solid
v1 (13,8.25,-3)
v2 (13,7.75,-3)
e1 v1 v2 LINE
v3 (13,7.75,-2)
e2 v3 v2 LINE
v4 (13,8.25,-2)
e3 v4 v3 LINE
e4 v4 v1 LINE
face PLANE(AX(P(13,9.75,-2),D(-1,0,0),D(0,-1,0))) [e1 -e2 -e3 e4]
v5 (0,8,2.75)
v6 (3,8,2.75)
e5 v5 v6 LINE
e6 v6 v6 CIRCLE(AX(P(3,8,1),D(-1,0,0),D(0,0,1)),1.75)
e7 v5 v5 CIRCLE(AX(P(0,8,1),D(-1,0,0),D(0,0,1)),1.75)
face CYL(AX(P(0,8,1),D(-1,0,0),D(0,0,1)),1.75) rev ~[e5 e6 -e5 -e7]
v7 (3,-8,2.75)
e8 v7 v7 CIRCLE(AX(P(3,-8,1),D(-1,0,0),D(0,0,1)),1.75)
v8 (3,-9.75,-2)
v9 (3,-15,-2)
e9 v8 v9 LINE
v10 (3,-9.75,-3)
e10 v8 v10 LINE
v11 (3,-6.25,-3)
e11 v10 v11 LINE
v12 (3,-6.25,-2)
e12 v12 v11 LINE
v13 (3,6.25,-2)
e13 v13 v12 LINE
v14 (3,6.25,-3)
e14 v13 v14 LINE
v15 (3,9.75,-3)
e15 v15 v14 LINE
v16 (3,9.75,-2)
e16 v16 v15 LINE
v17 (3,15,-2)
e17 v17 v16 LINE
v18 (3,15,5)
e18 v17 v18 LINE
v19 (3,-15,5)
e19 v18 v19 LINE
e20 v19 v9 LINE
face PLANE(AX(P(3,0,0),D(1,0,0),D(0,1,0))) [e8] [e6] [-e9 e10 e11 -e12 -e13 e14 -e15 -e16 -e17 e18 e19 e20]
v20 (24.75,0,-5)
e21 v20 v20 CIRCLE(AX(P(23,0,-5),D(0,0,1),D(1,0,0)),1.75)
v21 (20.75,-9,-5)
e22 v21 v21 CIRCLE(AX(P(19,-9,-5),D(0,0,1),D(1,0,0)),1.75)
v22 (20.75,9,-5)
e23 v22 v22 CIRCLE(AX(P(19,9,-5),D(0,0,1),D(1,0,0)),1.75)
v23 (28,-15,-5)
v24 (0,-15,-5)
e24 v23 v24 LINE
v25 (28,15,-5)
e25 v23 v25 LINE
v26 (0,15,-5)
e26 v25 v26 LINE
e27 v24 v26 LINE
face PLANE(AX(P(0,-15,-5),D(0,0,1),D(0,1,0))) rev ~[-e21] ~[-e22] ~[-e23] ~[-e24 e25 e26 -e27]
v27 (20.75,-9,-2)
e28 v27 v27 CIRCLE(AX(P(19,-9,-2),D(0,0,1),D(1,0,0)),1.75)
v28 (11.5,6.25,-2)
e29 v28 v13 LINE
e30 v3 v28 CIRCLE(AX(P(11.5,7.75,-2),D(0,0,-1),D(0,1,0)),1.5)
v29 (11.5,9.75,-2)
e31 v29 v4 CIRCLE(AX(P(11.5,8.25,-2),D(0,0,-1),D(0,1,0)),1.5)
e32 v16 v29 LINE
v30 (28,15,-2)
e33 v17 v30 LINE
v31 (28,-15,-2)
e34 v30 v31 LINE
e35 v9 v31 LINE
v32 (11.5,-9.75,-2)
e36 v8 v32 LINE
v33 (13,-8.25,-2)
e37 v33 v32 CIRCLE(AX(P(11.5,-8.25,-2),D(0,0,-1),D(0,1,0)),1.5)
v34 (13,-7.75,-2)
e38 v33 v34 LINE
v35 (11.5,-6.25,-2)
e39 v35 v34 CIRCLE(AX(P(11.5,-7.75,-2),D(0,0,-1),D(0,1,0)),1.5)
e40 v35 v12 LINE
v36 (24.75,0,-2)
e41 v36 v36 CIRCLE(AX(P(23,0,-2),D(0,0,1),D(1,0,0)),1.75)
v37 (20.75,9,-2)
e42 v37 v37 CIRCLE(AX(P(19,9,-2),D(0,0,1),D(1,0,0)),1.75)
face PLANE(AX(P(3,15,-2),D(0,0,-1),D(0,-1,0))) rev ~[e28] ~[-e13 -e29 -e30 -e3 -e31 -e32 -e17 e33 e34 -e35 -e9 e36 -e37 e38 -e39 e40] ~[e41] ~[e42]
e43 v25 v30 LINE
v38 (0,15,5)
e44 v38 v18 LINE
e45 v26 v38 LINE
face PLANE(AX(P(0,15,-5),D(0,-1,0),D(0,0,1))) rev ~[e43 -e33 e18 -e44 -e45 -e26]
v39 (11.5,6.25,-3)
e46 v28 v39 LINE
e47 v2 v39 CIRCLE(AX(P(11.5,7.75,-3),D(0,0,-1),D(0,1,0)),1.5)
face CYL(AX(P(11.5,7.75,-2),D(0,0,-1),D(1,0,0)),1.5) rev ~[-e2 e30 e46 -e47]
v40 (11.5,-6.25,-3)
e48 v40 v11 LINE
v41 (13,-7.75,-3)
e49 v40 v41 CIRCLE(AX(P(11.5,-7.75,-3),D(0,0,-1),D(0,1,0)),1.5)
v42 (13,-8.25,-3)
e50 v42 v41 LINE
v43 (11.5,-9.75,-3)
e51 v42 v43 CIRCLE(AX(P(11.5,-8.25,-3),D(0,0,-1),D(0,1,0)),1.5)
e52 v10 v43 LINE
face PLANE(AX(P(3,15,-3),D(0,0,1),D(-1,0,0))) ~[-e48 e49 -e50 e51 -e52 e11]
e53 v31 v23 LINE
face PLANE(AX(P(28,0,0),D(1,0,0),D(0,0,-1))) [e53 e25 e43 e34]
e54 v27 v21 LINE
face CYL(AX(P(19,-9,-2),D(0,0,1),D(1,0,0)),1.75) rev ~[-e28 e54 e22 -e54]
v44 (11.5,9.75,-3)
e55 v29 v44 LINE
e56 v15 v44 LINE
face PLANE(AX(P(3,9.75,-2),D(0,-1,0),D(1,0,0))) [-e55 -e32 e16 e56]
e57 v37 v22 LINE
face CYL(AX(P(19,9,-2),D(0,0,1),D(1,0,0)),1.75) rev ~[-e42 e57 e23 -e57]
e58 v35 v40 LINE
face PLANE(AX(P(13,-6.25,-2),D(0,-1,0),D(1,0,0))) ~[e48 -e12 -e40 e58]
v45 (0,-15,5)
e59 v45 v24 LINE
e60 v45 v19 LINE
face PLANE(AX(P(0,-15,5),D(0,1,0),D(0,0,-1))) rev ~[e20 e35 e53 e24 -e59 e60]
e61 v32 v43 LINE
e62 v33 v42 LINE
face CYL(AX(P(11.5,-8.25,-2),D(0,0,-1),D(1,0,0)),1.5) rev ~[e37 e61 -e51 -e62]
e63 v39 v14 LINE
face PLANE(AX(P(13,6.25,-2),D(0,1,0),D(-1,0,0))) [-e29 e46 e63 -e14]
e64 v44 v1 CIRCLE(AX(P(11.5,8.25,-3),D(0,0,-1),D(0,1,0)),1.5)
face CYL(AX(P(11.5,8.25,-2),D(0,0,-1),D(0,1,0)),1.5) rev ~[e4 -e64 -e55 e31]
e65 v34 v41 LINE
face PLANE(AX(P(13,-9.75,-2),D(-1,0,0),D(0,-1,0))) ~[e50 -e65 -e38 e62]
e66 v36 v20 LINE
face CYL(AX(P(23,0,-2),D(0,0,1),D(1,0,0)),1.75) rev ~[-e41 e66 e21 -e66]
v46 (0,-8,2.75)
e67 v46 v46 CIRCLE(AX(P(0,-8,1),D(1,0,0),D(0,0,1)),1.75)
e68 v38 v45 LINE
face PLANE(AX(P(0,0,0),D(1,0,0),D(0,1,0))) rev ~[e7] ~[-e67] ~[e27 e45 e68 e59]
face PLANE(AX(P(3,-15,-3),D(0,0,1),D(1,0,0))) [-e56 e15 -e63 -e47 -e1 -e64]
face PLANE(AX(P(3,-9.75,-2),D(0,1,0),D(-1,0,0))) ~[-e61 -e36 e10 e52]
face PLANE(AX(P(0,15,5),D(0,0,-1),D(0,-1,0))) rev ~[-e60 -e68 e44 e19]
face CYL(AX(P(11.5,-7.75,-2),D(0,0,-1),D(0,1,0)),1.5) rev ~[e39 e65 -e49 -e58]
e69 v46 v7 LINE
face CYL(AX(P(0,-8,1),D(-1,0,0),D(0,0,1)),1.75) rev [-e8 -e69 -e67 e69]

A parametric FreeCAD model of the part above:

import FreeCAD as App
import Part
import Sketcher
from FreeCAD import Vector


def edges_at(feature, points):
    """Names of the edges that pass closest to the given points."""
    edges = feature.Shape.Edges
    near = lambda p: min(range(len(edges)), key=lambda i: edges[i].distToShape(Part.Vertex(*p))[0])
    return sorted({f"Edge{near(p) + 1}" for p in points})

doc = App.newDocument("Part")
body = doc.addObject("PartDesign::Body", "Body")

sketch1 = body.newObject("Sketcher::SketchObject", "Sketch")
sketch1.AttachmentSupport = (doc.getObject("YZ_Plane"), [""])
sketch1.MapMode = "FlatFace"
sketch1.addGeometry([
    Part.LineSegment(Vector(15, -5, 0), Vector(15, 5, 0)),
    Part.LineSegment(Vector(15, 5, 0), Vector(-15, 5, 0)),
    Part.LineSegment(Vector(-15, 5, 0), Vector(-15, -5, 0)),
    Part.LineSegment(Vector(-15, -5, 0), Vector(15, -5, 0)),
], False)
sketch1.addConstraint([
    Sketcher.Constraint("Coincident", 0, 2, 1, 1),
    Sketcher.Constraint("Coincident", 1, 2, 2, 1),
    Sketcher.Constraint("Coincident", 2, 2, 3, 1),
    Sketcher.Constraint("Coincident", 3, 2, 0, 1),
    Sketcher.Constraint("Vertical", 0),
    Sketcher.Constraint("Horizontal", 1),
    Sketcher.Constraint("Vertical", 2),
    Sketcher.Constraint("Horizontal", 3),
    Sketcher.Constraint("Symmetric", 0, 2, 2, 2, -1, 1),
    Sketcher.Constraint("DistanceX", 1, 2, 1, 1, 30.0),
    Sketcher.Constraint("DistanceY", 0, 1, 0, 2, 10.0),
])
pad1 = body.newObject("PartDesign::Pad", "Pad")
pad1.Profile = sketch1
pad1.Length = 3

sketch2 = body.newObject("Sketcher::SketchObject", "Sketch001")
sketch2.AttachmentSupport = (doc.getObject("YZ_Plane"), [""])
sketch2.MapMode = "FlatFace"
sketch2.AttachmentOffset = App.Placement(Vector(0, 0, 3), App.Rotation())
sketch2.addGeometry([
    Part.LineSegment(Vector(-15, -2, 0), Vector(-15, -5, 0)),
    Part.LineSegment(Vector(-15, -5, 0), Vector(15, -5, 0)),
    Part.LineSegment(Vector(15, -5, 0), Vector(15, -2, 0)),
    Part.LineSegment(Vector(15, -2, 0), Vector(-15, -2, 0)),
], False)
sketch2.addConstraint([
    Sketcher.Constraint("Coincident", 0, 2, 1, 1),
    Sketcher.Constraint("Coincident", 1, 2, 2, 1),
    Sketcher.Constraint("Coincident", 2, 2, 3, 1),
    Sketcher.Constraint("Coincident", 3, 2, 0, 1),
    Sketcher.Constraint("Vertical", 0),
    Sketcher.Constraint("Horizontal", 1),
    Sketcher.Constraint("Vertical", 2),
    Sketcher.Constraint("Horizontal", 3),
    Sketcher.Constraint("DistanceY", 0, 2, 0, 1, 3.0),
    Sketcher.Constraint("DistanceX", 1, 1, 1, 2, 30.0),
    Sketcher.Constraint("DistanceX", 0, 2, -1, 1, 15.0),
    Sketcher.Constraint("DistanceY", 0, 2, -1, 1, 5.0),
])
pad2 = body.newObject("PartDesign::Pad", "Pad001")
pad2.Profile = sketch2
pad2.Length = 25

sketch3 = body.newObject("Sketcher::SketchObject", "Sketch002")
sketch3.AttachmentSupport = (doc.getObject("YZ_Plane"), [""])
sketch3.MapMode = "FlatFace"
sketch3.addGeometry(Part.Circle(Vector(8, 1, 0), Vector(0, 0, 1), 1.8), False)
sketch3.addConstraint([
    Sketcher.Constraint("Diameter", 0, 3.5),
    Sketcher.Constraint("DistanceX", -1, 1, 0, 3, 8.0),
    Sketcher.Constraint("DistanceY", -1, 1, 0, 3, 1.0),
])
pocket1 = body.newObject("PartDesign::Pocket", "Pocket")
pocket1.Profile = sketch3
pocket1.Length = 25
pocket1.Reversed = True
doc.recompute()

mirrored = body.newObject("PartDesign::Mirrored", "Mirrored")
mirrored.Originals = [pocket1]
mirrored.MirrorPlane = (doc.getObject("XZ_Plane"), [""])
body.Tip = mirrored

sketch4 = body.newObject("Sketcher::SketchObject", "Sketch003")
sketch4.AttachmentSupport = (doc.getObject("XY_Plane"), [""])
sketch4.MapMode = "FlatFace"
sketch4.AttachmentOffset = App.Placement(Vector(0, 0, -2), App.Rotation())
sketch4.addGeometry([
    Part.LineSegment(Vector(13, 9.8, 0), Vector(3, 9.8, 0)),
    Part.LineSegment(Vector(3, 9.8, 0), Vector(3, 6.2, 0)),
    Part.LineSegment(Vector(3, 6.2, 0), Vector(13, 6.2, 0)),
    Part.LineSegment(Vector(13, 6.2, 0), Vector(13, 9.8, 0)),
], False)
sketch4.addConstraint([
    Sketcher.Constraint("Coincident", 0, 2, 1, 1),
    Sketcher.Constraint("Coincident", 1, 2, 2, 1),
    Sketcher.Constraint("Coincident", 2, 2, 3, 1),
    Sketcher.Constraint("Coincident", 3, 2, 0, 1),
    Sketcher.Constraint("Horizontal", 0),
    Sketcher.Constraint("Vertical", 1),
    Sketcher.Constraint("Horizontal", 2),
    Sketcher.Constraint("Vertical", 3),
    Sketcher.Constraint("DistanceX", 0, 2, 0, 1, 10.0),
    Sketcher.Constraint("DistanceY", 1, 2, 1, 1, 3.5),
    Sketcher.Constraint("DistanceX", -1, 1, 0, 2, 3.0),
    Sketcher.Constraint("DistanceY", -1, 1, 0, 2, 9.75),
])
pocket2 = body.newObject("PartDesign::Pocket", "Pocket001")
pocket2.Profile = sketch4
pocket2.Length = 1
doc.recompute()

fillet = body.newObject("PartDesign::Fillet", "Fillet")
fillet.Base = (pocket2, edges_at(pocket2, [(13, 9.75, -2.5), (13, 6.25, -2.5)]))
fillet.Radius = 1.5
doc.recompute()

mirrored2 = body.newObject("PartDesign::Mirrored", "Mirrored001")
mirrored2.Originals = [pocket2, fillet]
mirrored2.MirrorPlane = (doc.getObject("XZ_Plane"), [""])
body.Tip = mirrored2

sketch5 = body.newObject("Sketcher::SketchObject", "Sketch004")
sketch5.AttachmentSupport = (doc.getObject("XY_Plane"), [""])
sketch5.MapMode = "FlatFace"
sketch5.AttachmentOffset = App.Placement(Vector(0, 0, -2), App.Rotation())
sketch5.addGeometry([
    Part.Circle(Vector(19, 9, 0), Vector(0, 0, 1), 1.8),
    Part.Circle(Vector(23, 0, 0), Vector(0, 0, 1), 1.8),
    Part.Circle(Vector(19, -9, 0), Vector(0, 0, 1), 1.8),
], False)
sketch5.addConstraint([
    Sketcher.Constraint("Equal", 0, 1),
    Sketcher.Constraint("Equal", 1, 2),
    Sketcher.Constraint("Symmetric", 0, 3, 2, 3, -1),
    Sketcher.Constraint("PointOnObject", 1, 3, -1),
    Sketcher.Constraint("Diameter", 0, 3.5),
    Sketcher.Constraint("DistanceY", -1, 1, 0, 3, 9.0),
    Sketcher.Constraint("DistanceX", -1, 1, 0, 3, 19.0),
    Sketcher.Constraint("DistanceX", -1, 1, 1, 3, 23.0),
])
pocket3 = body.newObject("PartDesign::Pocket", "Pocket002")
pocket3.Profile = sketch5
pocket3.Length = 9

doc.recompute()
